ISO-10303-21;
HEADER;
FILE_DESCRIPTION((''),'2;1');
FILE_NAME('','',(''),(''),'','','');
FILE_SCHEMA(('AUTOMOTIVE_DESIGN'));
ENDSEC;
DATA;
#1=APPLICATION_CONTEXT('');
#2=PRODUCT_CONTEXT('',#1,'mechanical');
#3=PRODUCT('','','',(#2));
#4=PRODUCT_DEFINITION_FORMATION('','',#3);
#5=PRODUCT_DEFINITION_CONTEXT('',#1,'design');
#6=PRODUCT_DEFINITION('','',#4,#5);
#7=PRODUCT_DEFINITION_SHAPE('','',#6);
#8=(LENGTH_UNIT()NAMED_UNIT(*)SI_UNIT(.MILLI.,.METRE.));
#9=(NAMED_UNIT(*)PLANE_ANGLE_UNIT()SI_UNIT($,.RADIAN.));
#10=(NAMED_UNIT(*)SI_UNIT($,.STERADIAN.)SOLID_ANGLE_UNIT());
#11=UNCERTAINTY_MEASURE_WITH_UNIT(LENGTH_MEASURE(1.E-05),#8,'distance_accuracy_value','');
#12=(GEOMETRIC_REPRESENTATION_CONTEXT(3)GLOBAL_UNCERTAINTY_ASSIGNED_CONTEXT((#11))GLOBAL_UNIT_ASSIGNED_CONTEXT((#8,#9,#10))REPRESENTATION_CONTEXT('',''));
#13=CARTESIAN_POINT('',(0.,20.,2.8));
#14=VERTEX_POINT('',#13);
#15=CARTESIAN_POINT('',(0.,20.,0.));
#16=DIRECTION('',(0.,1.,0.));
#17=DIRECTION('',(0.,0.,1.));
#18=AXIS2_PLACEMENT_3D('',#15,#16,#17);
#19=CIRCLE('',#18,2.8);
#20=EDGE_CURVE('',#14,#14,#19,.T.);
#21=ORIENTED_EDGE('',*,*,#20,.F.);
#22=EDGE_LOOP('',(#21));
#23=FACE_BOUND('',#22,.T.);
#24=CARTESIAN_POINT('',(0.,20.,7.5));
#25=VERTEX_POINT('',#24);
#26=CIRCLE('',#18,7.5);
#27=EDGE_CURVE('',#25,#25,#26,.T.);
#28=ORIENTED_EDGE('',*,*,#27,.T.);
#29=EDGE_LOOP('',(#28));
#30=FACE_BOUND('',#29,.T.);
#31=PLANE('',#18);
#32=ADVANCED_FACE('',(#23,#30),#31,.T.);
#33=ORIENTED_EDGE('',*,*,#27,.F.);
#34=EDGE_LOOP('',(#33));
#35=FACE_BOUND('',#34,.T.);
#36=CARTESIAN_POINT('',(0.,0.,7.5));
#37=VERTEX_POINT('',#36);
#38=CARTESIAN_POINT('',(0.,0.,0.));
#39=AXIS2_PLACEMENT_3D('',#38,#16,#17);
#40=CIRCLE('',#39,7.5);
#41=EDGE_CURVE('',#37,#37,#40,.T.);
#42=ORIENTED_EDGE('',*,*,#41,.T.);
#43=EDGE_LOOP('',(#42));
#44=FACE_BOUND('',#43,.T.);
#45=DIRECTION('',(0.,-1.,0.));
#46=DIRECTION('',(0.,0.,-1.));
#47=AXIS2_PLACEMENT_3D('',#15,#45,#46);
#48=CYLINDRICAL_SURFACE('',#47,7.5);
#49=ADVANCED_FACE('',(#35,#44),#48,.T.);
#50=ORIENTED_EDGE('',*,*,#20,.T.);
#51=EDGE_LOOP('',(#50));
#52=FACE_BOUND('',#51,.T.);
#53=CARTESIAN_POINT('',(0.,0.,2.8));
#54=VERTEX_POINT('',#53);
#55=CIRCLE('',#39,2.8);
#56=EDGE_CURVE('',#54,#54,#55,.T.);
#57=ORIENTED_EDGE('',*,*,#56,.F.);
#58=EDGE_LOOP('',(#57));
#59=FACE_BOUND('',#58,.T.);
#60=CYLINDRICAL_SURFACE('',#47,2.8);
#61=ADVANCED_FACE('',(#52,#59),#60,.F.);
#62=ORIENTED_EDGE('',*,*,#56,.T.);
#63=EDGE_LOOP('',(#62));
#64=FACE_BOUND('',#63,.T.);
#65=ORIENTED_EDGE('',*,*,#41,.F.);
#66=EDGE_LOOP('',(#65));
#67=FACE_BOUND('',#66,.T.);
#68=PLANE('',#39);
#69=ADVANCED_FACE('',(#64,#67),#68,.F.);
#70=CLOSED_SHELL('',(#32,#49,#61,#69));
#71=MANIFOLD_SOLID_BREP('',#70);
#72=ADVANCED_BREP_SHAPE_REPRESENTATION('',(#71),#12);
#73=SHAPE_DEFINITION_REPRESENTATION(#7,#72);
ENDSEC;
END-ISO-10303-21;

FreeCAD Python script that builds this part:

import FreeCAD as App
import Part
import Sketcher
Q = App.Units.Quantity

doc = App.newDocument("Part")
body = doc.addObject("PartDesign::Body", "Body")

sketch1 = body.newObject("Sketcher::SketchObject", "Sketch")
sketch1.AttachmentSupport = (doc.getObject("XZ_Plane"), [""])
sketch1.MapMode = "FlatFace"
sketch1.addGeometry([
    Part.Circle(App.Vector(0, 0, 0), App.Vector(0, 0, 1), 7.5),
    Part.Circle(App.Vector(0, 0, 0), App.Vector(0, 0, 1), 2.8),
], False)
sketch1.addConstraint([
    Sketcher.Constraint("Coincident", 0, 3, -1, 1),
    Sketcher.Constraint("Coincident", 1, 3, -1, 1),
    Sketcher.Constraint("Diameter", 0, Q("15 mm")),
    Sketcher.Constraint("Diameter", 1, Q("5.6 mm")),
])
pad1 = body.newObject("PartDesign::Pad", "Pad")
pad1.Profile = sketch1
pad1.Length = 20
pad1.Reversed = True

doc.recompute()
